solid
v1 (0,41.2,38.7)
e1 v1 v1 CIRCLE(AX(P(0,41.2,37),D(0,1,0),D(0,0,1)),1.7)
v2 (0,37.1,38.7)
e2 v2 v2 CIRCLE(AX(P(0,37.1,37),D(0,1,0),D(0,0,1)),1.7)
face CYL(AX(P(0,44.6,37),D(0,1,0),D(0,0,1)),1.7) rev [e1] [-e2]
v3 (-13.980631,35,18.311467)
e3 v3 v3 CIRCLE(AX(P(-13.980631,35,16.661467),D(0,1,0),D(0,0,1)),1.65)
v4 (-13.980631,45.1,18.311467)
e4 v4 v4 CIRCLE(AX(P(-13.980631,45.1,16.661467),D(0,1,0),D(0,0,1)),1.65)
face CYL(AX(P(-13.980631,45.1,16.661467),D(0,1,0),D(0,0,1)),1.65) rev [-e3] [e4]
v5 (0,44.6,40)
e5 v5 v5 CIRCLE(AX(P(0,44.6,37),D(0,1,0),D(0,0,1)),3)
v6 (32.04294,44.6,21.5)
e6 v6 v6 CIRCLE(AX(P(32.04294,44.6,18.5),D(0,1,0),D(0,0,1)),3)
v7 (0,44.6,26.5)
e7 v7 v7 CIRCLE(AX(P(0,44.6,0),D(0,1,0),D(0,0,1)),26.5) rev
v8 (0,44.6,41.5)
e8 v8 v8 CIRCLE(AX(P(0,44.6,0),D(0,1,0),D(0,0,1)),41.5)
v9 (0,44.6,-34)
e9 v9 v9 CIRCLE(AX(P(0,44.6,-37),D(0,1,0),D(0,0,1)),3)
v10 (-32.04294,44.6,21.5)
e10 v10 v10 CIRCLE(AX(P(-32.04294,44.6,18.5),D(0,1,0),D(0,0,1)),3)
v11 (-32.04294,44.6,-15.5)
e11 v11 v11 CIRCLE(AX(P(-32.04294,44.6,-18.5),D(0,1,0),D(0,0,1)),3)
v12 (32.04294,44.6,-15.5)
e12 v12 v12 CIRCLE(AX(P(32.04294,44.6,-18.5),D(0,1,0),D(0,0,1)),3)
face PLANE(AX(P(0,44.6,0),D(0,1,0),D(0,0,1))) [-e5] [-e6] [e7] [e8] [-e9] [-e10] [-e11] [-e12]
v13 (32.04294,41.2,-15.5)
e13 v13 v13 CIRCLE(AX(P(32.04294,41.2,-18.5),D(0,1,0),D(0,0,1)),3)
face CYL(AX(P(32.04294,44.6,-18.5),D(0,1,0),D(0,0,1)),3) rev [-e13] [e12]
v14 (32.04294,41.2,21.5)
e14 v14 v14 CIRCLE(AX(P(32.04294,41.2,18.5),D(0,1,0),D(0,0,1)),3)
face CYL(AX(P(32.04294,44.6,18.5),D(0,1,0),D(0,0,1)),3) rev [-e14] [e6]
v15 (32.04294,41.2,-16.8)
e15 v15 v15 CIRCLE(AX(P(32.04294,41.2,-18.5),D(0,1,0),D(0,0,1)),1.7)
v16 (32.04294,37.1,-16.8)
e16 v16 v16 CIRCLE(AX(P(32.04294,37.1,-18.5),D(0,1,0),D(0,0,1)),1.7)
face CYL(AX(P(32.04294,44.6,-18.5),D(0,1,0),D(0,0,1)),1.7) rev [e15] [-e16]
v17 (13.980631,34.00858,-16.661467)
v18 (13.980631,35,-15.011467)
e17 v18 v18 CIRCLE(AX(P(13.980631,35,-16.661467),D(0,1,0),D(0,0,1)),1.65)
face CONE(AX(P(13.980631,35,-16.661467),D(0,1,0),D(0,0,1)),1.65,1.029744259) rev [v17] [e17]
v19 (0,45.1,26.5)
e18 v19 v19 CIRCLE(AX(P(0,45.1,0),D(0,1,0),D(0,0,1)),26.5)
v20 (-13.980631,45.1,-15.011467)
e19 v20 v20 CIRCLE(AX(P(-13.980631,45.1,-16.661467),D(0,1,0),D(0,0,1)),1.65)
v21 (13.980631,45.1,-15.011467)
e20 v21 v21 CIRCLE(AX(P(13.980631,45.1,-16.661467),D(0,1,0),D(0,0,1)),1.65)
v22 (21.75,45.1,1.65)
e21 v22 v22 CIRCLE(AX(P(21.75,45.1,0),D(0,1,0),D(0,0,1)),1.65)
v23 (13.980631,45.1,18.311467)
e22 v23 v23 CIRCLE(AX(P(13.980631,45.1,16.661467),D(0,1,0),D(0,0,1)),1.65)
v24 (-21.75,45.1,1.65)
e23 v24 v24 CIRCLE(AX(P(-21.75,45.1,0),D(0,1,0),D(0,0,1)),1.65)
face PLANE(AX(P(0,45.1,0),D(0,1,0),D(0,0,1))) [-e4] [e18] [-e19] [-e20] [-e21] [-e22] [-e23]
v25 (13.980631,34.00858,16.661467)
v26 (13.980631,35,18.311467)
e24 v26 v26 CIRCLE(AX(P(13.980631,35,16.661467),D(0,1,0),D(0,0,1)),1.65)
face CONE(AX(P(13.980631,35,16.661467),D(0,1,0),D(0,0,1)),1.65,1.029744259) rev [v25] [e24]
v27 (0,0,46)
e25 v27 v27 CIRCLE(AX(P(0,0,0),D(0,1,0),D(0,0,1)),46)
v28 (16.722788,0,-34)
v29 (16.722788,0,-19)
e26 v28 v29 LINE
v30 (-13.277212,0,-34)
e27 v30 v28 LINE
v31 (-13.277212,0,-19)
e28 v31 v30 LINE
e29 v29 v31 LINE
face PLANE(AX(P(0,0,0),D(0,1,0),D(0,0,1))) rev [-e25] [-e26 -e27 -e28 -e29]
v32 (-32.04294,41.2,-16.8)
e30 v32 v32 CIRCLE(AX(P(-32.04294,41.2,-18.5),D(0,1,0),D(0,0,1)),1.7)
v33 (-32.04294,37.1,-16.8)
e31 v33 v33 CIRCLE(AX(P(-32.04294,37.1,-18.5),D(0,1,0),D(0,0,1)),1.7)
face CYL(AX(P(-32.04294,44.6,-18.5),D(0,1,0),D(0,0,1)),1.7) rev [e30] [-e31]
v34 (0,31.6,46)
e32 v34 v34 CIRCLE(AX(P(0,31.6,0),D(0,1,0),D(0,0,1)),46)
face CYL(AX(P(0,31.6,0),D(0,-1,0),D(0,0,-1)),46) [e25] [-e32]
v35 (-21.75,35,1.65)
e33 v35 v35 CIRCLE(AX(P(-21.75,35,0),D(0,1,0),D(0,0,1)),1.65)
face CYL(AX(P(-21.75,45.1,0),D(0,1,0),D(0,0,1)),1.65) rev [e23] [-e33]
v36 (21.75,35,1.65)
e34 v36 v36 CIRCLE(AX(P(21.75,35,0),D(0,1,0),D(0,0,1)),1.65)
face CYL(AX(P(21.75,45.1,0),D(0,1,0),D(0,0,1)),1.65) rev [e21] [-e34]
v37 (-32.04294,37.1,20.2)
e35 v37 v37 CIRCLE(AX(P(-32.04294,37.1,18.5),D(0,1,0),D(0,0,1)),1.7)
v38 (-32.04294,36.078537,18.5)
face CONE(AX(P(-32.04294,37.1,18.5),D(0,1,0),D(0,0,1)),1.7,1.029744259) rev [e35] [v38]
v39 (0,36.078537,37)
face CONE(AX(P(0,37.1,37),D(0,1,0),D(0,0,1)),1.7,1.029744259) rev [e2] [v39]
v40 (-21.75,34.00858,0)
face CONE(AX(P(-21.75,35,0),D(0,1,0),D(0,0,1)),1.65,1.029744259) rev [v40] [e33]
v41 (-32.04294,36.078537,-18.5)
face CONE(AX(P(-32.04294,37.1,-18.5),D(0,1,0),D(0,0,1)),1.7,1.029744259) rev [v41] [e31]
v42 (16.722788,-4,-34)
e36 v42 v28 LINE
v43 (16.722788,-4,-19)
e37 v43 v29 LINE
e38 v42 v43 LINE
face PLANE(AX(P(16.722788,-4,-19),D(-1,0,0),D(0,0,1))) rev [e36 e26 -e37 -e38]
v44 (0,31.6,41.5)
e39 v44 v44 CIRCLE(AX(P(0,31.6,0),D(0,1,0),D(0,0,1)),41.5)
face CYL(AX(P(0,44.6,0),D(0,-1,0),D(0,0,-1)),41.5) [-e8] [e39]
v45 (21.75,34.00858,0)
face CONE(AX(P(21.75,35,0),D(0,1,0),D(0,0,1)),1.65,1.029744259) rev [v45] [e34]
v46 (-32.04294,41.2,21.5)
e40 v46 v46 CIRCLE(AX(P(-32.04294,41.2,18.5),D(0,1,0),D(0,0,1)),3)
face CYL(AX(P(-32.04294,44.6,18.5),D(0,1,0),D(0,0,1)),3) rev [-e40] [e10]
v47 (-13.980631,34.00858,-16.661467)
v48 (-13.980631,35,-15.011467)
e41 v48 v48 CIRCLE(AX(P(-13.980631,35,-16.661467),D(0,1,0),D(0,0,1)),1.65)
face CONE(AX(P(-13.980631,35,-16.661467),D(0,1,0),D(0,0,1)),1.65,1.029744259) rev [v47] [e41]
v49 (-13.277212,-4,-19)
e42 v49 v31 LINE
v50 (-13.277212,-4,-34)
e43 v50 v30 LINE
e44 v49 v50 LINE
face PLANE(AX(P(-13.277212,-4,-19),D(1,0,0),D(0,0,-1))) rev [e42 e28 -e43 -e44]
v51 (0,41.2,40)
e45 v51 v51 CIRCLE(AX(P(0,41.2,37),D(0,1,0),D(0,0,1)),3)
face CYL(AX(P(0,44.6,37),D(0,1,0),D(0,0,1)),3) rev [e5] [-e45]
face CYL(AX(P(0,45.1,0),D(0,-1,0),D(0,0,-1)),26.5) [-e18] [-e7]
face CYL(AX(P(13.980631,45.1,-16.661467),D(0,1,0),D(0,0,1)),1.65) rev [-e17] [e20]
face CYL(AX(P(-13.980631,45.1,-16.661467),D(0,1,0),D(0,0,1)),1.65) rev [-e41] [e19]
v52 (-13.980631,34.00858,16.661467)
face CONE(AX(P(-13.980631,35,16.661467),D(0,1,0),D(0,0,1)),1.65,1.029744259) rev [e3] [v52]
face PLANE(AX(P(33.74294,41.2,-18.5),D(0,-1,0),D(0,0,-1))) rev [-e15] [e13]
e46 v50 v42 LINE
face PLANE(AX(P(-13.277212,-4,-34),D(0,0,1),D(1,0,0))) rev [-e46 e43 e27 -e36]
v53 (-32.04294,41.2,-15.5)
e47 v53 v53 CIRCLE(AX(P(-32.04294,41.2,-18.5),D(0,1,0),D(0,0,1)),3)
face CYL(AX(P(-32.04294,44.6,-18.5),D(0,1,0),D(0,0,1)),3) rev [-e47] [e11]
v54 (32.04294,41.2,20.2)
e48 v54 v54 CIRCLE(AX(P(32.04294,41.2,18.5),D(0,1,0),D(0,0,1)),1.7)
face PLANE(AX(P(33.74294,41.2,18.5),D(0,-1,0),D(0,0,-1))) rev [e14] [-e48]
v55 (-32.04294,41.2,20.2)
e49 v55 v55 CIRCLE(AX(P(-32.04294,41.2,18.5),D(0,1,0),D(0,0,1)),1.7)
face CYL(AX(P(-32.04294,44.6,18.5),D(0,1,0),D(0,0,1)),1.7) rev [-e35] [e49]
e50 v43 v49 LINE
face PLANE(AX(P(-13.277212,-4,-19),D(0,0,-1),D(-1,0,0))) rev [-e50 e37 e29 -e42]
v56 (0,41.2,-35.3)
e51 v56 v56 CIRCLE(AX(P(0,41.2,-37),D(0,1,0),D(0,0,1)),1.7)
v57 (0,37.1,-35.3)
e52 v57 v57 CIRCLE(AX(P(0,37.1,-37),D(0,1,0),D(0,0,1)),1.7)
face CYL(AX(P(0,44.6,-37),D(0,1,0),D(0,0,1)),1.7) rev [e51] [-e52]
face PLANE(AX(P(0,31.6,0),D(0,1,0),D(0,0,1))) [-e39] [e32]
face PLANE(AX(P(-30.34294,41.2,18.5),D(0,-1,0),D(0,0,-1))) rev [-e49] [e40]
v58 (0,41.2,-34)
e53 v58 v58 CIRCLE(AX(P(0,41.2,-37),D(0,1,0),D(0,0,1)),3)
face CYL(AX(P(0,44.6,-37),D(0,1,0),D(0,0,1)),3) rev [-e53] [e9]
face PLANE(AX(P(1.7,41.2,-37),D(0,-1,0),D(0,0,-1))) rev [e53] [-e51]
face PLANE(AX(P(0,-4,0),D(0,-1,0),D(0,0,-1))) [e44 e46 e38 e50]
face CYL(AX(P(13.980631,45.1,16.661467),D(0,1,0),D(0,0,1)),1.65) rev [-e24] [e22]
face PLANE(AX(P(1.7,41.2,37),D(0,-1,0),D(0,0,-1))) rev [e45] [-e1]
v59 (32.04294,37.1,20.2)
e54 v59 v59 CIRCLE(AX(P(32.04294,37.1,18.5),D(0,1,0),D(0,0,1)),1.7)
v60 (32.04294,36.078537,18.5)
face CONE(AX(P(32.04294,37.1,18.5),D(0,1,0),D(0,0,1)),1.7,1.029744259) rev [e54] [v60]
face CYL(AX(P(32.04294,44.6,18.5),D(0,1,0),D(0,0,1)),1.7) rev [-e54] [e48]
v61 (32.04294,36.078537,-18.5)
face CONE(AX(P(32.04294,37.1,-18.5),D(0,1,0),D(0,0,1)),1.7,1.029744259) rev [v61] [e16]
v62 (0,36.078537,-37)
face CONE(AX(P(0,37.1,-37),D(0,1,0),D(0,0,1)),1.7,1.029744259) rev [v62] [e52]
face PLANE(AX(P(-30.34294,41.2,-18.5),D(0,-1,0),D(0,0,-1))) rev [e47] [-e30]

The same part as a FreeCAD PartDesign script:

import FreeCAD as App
import Part
import Sketcher

V = App.Vector
Q = App.Units.Quantity

doc = App.newDocument("Part")
body = doc.addObject("PartDesign::Body", "Body")

# Sketch on XZ plane
sketch1 = body.newObject("Sketcher::SketchObject", "Sketch")
sketch1.AttachmentSupport = (doc.getObject("XZ_Plane"), [""])
sketch1.MapMode = "FlatFace"
sketch1.addGeometry(Part.Circle(V(0, 0, 0), V(0, 0, 1), 46), False)
sketch1.addConstraint([
    Sketcher.Constraint("Coincident", 0, 3, -1, 1),
    Sketcher.Constraint("Diameter", 0, Q("92 mm")),
])
pad1 = body.newObject("PartDesign::Pad", "Pad")
pad1.Profile = sketch1
pad1.Length = 31.6
pad1.Reversed = True

# Sketch on XZ plane
sketch2 = body.newObject("Sketcher::SketchObject", "Sketch001")
sketch2.AttachmentSupport = (doc.getObject("XZ_Plane"), [""])
sketch2.MapMode = "FlatFace"
sketch2.AttachmentOffset = App.Placement(V(0, 0, -31.6), App.Rotation())
sketch2.addGeometry(Part.Circle(V(0, 0, 0), V(0, 0, 1), 42), False)
sketch2.addConstraint([
    Sketcher.Constraint("Coincident", 0, 3, -1, 1),
    Sketcher.Constraint("Diameter", 0, Q("83 mm")),
])
pad2 = body.newObject("PartDesign::Pad", "Pad001")
pad2.Profile = sketch2
pad2.Length = 13
pad2.Reversed = True

# Sketch on XZ plane
sketch3 = body.newObject("Sketcher::SketchObject", "Sketch002")
sketch3.AttachmentSupport = (doc.getObject("XZ_Plane"), [""])
sketch3.MapMode = "FlatFace"
sketch3.AttachmentOffset = App.Placement(V(0, 0, -31.6), App.Rotation())
sketch3.addGeometry(Part.Circle(V(0, 0, 0), V(0, 0, 1), 26), False)
sketch3.addConstraint([
    Sketcher.Constraint("Coincident", 0, 3, -1, 1),
    Sketcher.Constraint("Diameter", 0, Q("53 mm")),
])
pad3 = body.newObject("PartDesign::Pad", "Pad002")
pad3.Profile = sketch3
pad3.Length = 13.5
pad3.Reversed = True

# Sketch on XZ plane
sketch4 = body.newObject("Sketcher::SketchObject", "Sketch003")
sketch4.AttachmentSupport = (doc.getObject("XZ_Plane"), [""])
sketch4.MapMode = "FlatFace"
sketch4.AttachmentOffset = App.Placement(V(0, 0, -45.1), App.Rotation())
sketch4.addGeometry([
    Part.Circle(V(-21.8, 0, 0), V(0, 0, 1), 1.5),  # 0
    Part.Circle(V(21.8, 0, 0), V(0, 0, 1), 1.5),  # 1
    Part.Circle(V(14, -16.7, 0), V(0, 0, 1), 1.5),  # 2
    Part.Circle(V(-14, -16.7, 0), V(0, 0, 1), 1.5),  # 3
    Part.Circle(V(14, 16.7, 0), V(0, 0, 1), 1.5),  # 4
    Part.Circle(V(-14, 16.7, 0), V(0, 0, 1), 1.5),  # 5
], False)
sketch4.addConstraint([
    Sketcher.Constraint("Equal", 0, 1),
    Sketcher.Constraint("Equal", 1, 2),
    Sketcher.Constraint("Equal", 2, 3),
    Sketcher.Constraint("Equal", 3, 4),
    Sketcher.Constraint("Equal", 4, 5),
    Sketcher.Constraint("Symmetric", 0, 3, 1, 3, -1, 1),
    Sketcher.Constraint("Symmetric", 3, 3, 4, 3, -1, 1),
    Sketcher.Constraint("Symmetric", 2, 3, 5, 3, -1, 1),
    Sketcher.Constraint("Symmetric", 2, 3, 3, 3, -2),
    Sketcher.Constraint("PointOnObject", 0, 3, -1),
    Sketcher.Constraint("Diameter", 0, Q("3 mm")),
    Sketcher.Constraint("DistanceX", 0, 3, 1, 3, Q("43.5 mm")),
    Sketcher.Constraint("DistanceX", -1, 1, 2, 3, Q("13.980631 mm")),
    Sketcher.Constraint("DistanceY", 2, 3, -1, 1, Q("16.661467 mm")),
])
pocket1 = body.newObject("PartDesign::Pocket", "Pocket")
pocket1.Profile = sketch4
pocket1.Length = 10
pocket1.Reversed = True

# Sketch on XZ plane
sketch5 = body.newObject("Sketcher::SketchObject", "Sketch004")
sketch5.AttachmentSupport = (doc.getObject("XZ_Plane"), [""])
sketch5.MapMode = "FlatFace"
sketch5.AttachmentOffset = App.Placement(V(0, 0, -45.1), App.Rotation())
sketch5.addGeometry([
    Part.Circle(V(-14, 16.7, 0), V(0, 0, 1), 1.6),  # 0
    Part.Circle(V(-21.8, 0, 0), V(0, 0, 1), 1.6),  # 1
    Part.Circle(V(-14, -16.7, 0), V(0, 0, 1), 1.6),  # 2
    Part.Circle(V(14, -16.7, 0), V(0, 0, 1), 1.6),  # 3
    Part.Circle(V(21.8, 0, 0), V(0, 0, 1), 1.6),  # 4
    Part.Circle(V(14, 16.7, 0), V(0, 0, 1), 1.6),  # 5
], False)
sketch5.addConstraint([
    Sketcher.Constraint("Equal", 0, 1),
    Sketcher.Constraint("Equal", 1, 2),
    Sketcher.Constraint("Equal", 2, 3),
    Sketcher.Constraint("Equal", 3, 4),
    Sketcher.Constraint("Equal", 4, 5),
    Sketcher.Constraint("Symmetric", 0, 3, 3, 3, -1, 1),
    Sketcher.Constraint("Symmetric", 1, 3, 4, 3, -1, 1),
    Sketcher.Constraint("Symmetric", 2, 3, 5, 3, -1, 1),
    Sketcher.Constraint("Symmetric", 2, 3, 3, 3, -2),
    Sketcher.Constraint("PointOnObject", 1, 3, -1),
    Sketcher.Constraint("Diameter", 0, Q("3.3 mm")),
    Sketcher.Constraint("DistanceX", 1, 3, 4, 3, Q("43.5 mm")),
    Sketcher.Constraint("DistanceX", 0, 3, -1, 1, Q("13.980631 mm")),
    Sketcher.Constraint("DistanceY", -1, 1, 0, 3, Q("16.661467 mm")),
])
doc.recompute()
hole = body.newObject("PartDesign::Hole", "Hole")
hole.Profile = sketch5
hole.ThreadType = "None"
hole.Diameter = 3.3
hole.DepthType = "Dimension"
hole.Depth = 10.1
hole.DrillPoint = "Angled"
hole.DrillPointAngle = 118
hole.Reversed = True

# Sketch on XZ plane
sketch6 = body.newObject("Sketcher::SketchObject", "Sketch005")
sketch6.AttachmentSupport = (doc.getObject("XZ_Plane"), [""])
sketch6.MapMode = "FlatFace"
sketch6.AttachmentOffset = App.Placement(V(0, 0, -44.6), App.Rotation())
sketch6.addGeometry([
    Part.Circle(V(32, -18.5, 0), V(0, 0, 1), 1.7),  # 0
    Part.Circle(V(32, 18.5, 0), V(0, 0, 1), 1.7),  # 1
    Part.Circle(V(0, 37, 0), V(0, 0, 1), 1.7),  # 2
    Part.Circle(V(-32, 18.5, 0), V(0, 0, 1), 1.7),  # 3
    Part.Circle(V(-32, -18.5, 0), V(0, 0, 1), 1.7),  # 4
    Part.Circle(V(0, -37, 0), V(0, 0, 1), 1.7),  # 5
], False)
sketch6.addConstraint([
    Sketcher.Constraint("Equal", 0, 1),
    Sketcher.Constraint("Equal", 1, 2),
    Sketcher.Constraint("Equal", 2, 3),
    Sketcher.Constraint("Equal", 3, 4),
    Sketcher.Constraint("Equal", 4, 5),
    Sketcher.Constraint("Symmetric", 0, 3, 3, 3, -1, 1),
    Sketcher.Constraint("Symmetric", 1, 3, 4, 3, -1, 1),
    Sketcher.Constraint("Symmetric", 2, 3, 5, 3, -1, 1),
    Sketcher.Constraint("Symmetric", 1, 3, 3, 3, -2),
    Sketcher.Constraint("PointOnObject", 2, 3, -2),
    Sketcher.Constraint("Diameter", 0, Q("3.4 mm")),
    Sketcher.Constraint("DistanceY", -1, 1, 2, 3, Q("37 mm")),
    Sketcher.Constraint("DistanceY", 0, 3, 1, 3, Q("37 mm")),
    Sketcher.Constraint("DistanceX", -1, 1, 0, 3, Q("32.04294 mm")),
])
doc.recompute()
hole2 = body.newObject("PartDesign::Hole", "Hole001")
hole2.Profile = sketch6
hole2.ThreadType = "None"
hole2.Diameter = 3.4
hole2.DepthType = "Dimension"
hole2.Depth = 7.5
hole2.DrillPoint = "Angled"
hole2.DrillPointAngle = 118
hole2.HoleCutType = "Counterbore"
hole2.HoleCutDiameter = 6
hole2.HoleCutDepth = 3.4
hole2.Reversed = True

# Sketch on XZ plane
sketch7 = body.newObject("Sketcher::SketchObject", "Sketch006")
sketch7.AttachmentSupport = (doc.getObject("XZ_Plane"), [""])
sketch7.MapMode = "FlatFace"
sketch7.addGeometry([
    Part.LineSegment(V(-13, -19, 0), V(-13, -34, 0)),
    Part.LineSegment(V(-13, -34, 0), V(17, -34, 0)),
    Part.LineSegment(V(17, -34, 0), V(17, -19, 0)),
    Part.LineSegment(V(17, -19, 0), V(-13, -19, 0)),
], False)
sketch7.addConstraint([
    Sketcher.Constraint("Coincident", 0, 2, 1, 1),
    Sketcher.Constraint("Coincident", 1, 2, 2, 1),
    Sketcher.Constraint("Coincident", 2, 2, 3, 1),
    Sketcher.Constraint("Coincident", 3, 2, 0, 1),
    Sketcher.Constraint("Vertical", 0),
    Sketcher.Constraint("Horizontal", 1),
    Sketcher.Constraint("Vertical", 2),
    Sketcher.Constraint("Horizontal", 3),
    Sketcher.Constraint("DistanceX", 1, 1, 1, 2, Q("30 mm")),
    Sketcher.Constraint("DistanceY", 0, 2, 0, 1, Q("15 mm")),
    Sketcher.Constraint("DistanceY", 0, 2, -1, 1, Q("34 mm")),
    Sketcher.Constraint("DistanceX", 0, 2, -1, 1, Q("13.277212 mm")),
])
pad4 = body.newObject("PartDesign::Pad", "Pad003")
pad4.Profile = sketch7
pad4.Length = 4

doc.recompute()
